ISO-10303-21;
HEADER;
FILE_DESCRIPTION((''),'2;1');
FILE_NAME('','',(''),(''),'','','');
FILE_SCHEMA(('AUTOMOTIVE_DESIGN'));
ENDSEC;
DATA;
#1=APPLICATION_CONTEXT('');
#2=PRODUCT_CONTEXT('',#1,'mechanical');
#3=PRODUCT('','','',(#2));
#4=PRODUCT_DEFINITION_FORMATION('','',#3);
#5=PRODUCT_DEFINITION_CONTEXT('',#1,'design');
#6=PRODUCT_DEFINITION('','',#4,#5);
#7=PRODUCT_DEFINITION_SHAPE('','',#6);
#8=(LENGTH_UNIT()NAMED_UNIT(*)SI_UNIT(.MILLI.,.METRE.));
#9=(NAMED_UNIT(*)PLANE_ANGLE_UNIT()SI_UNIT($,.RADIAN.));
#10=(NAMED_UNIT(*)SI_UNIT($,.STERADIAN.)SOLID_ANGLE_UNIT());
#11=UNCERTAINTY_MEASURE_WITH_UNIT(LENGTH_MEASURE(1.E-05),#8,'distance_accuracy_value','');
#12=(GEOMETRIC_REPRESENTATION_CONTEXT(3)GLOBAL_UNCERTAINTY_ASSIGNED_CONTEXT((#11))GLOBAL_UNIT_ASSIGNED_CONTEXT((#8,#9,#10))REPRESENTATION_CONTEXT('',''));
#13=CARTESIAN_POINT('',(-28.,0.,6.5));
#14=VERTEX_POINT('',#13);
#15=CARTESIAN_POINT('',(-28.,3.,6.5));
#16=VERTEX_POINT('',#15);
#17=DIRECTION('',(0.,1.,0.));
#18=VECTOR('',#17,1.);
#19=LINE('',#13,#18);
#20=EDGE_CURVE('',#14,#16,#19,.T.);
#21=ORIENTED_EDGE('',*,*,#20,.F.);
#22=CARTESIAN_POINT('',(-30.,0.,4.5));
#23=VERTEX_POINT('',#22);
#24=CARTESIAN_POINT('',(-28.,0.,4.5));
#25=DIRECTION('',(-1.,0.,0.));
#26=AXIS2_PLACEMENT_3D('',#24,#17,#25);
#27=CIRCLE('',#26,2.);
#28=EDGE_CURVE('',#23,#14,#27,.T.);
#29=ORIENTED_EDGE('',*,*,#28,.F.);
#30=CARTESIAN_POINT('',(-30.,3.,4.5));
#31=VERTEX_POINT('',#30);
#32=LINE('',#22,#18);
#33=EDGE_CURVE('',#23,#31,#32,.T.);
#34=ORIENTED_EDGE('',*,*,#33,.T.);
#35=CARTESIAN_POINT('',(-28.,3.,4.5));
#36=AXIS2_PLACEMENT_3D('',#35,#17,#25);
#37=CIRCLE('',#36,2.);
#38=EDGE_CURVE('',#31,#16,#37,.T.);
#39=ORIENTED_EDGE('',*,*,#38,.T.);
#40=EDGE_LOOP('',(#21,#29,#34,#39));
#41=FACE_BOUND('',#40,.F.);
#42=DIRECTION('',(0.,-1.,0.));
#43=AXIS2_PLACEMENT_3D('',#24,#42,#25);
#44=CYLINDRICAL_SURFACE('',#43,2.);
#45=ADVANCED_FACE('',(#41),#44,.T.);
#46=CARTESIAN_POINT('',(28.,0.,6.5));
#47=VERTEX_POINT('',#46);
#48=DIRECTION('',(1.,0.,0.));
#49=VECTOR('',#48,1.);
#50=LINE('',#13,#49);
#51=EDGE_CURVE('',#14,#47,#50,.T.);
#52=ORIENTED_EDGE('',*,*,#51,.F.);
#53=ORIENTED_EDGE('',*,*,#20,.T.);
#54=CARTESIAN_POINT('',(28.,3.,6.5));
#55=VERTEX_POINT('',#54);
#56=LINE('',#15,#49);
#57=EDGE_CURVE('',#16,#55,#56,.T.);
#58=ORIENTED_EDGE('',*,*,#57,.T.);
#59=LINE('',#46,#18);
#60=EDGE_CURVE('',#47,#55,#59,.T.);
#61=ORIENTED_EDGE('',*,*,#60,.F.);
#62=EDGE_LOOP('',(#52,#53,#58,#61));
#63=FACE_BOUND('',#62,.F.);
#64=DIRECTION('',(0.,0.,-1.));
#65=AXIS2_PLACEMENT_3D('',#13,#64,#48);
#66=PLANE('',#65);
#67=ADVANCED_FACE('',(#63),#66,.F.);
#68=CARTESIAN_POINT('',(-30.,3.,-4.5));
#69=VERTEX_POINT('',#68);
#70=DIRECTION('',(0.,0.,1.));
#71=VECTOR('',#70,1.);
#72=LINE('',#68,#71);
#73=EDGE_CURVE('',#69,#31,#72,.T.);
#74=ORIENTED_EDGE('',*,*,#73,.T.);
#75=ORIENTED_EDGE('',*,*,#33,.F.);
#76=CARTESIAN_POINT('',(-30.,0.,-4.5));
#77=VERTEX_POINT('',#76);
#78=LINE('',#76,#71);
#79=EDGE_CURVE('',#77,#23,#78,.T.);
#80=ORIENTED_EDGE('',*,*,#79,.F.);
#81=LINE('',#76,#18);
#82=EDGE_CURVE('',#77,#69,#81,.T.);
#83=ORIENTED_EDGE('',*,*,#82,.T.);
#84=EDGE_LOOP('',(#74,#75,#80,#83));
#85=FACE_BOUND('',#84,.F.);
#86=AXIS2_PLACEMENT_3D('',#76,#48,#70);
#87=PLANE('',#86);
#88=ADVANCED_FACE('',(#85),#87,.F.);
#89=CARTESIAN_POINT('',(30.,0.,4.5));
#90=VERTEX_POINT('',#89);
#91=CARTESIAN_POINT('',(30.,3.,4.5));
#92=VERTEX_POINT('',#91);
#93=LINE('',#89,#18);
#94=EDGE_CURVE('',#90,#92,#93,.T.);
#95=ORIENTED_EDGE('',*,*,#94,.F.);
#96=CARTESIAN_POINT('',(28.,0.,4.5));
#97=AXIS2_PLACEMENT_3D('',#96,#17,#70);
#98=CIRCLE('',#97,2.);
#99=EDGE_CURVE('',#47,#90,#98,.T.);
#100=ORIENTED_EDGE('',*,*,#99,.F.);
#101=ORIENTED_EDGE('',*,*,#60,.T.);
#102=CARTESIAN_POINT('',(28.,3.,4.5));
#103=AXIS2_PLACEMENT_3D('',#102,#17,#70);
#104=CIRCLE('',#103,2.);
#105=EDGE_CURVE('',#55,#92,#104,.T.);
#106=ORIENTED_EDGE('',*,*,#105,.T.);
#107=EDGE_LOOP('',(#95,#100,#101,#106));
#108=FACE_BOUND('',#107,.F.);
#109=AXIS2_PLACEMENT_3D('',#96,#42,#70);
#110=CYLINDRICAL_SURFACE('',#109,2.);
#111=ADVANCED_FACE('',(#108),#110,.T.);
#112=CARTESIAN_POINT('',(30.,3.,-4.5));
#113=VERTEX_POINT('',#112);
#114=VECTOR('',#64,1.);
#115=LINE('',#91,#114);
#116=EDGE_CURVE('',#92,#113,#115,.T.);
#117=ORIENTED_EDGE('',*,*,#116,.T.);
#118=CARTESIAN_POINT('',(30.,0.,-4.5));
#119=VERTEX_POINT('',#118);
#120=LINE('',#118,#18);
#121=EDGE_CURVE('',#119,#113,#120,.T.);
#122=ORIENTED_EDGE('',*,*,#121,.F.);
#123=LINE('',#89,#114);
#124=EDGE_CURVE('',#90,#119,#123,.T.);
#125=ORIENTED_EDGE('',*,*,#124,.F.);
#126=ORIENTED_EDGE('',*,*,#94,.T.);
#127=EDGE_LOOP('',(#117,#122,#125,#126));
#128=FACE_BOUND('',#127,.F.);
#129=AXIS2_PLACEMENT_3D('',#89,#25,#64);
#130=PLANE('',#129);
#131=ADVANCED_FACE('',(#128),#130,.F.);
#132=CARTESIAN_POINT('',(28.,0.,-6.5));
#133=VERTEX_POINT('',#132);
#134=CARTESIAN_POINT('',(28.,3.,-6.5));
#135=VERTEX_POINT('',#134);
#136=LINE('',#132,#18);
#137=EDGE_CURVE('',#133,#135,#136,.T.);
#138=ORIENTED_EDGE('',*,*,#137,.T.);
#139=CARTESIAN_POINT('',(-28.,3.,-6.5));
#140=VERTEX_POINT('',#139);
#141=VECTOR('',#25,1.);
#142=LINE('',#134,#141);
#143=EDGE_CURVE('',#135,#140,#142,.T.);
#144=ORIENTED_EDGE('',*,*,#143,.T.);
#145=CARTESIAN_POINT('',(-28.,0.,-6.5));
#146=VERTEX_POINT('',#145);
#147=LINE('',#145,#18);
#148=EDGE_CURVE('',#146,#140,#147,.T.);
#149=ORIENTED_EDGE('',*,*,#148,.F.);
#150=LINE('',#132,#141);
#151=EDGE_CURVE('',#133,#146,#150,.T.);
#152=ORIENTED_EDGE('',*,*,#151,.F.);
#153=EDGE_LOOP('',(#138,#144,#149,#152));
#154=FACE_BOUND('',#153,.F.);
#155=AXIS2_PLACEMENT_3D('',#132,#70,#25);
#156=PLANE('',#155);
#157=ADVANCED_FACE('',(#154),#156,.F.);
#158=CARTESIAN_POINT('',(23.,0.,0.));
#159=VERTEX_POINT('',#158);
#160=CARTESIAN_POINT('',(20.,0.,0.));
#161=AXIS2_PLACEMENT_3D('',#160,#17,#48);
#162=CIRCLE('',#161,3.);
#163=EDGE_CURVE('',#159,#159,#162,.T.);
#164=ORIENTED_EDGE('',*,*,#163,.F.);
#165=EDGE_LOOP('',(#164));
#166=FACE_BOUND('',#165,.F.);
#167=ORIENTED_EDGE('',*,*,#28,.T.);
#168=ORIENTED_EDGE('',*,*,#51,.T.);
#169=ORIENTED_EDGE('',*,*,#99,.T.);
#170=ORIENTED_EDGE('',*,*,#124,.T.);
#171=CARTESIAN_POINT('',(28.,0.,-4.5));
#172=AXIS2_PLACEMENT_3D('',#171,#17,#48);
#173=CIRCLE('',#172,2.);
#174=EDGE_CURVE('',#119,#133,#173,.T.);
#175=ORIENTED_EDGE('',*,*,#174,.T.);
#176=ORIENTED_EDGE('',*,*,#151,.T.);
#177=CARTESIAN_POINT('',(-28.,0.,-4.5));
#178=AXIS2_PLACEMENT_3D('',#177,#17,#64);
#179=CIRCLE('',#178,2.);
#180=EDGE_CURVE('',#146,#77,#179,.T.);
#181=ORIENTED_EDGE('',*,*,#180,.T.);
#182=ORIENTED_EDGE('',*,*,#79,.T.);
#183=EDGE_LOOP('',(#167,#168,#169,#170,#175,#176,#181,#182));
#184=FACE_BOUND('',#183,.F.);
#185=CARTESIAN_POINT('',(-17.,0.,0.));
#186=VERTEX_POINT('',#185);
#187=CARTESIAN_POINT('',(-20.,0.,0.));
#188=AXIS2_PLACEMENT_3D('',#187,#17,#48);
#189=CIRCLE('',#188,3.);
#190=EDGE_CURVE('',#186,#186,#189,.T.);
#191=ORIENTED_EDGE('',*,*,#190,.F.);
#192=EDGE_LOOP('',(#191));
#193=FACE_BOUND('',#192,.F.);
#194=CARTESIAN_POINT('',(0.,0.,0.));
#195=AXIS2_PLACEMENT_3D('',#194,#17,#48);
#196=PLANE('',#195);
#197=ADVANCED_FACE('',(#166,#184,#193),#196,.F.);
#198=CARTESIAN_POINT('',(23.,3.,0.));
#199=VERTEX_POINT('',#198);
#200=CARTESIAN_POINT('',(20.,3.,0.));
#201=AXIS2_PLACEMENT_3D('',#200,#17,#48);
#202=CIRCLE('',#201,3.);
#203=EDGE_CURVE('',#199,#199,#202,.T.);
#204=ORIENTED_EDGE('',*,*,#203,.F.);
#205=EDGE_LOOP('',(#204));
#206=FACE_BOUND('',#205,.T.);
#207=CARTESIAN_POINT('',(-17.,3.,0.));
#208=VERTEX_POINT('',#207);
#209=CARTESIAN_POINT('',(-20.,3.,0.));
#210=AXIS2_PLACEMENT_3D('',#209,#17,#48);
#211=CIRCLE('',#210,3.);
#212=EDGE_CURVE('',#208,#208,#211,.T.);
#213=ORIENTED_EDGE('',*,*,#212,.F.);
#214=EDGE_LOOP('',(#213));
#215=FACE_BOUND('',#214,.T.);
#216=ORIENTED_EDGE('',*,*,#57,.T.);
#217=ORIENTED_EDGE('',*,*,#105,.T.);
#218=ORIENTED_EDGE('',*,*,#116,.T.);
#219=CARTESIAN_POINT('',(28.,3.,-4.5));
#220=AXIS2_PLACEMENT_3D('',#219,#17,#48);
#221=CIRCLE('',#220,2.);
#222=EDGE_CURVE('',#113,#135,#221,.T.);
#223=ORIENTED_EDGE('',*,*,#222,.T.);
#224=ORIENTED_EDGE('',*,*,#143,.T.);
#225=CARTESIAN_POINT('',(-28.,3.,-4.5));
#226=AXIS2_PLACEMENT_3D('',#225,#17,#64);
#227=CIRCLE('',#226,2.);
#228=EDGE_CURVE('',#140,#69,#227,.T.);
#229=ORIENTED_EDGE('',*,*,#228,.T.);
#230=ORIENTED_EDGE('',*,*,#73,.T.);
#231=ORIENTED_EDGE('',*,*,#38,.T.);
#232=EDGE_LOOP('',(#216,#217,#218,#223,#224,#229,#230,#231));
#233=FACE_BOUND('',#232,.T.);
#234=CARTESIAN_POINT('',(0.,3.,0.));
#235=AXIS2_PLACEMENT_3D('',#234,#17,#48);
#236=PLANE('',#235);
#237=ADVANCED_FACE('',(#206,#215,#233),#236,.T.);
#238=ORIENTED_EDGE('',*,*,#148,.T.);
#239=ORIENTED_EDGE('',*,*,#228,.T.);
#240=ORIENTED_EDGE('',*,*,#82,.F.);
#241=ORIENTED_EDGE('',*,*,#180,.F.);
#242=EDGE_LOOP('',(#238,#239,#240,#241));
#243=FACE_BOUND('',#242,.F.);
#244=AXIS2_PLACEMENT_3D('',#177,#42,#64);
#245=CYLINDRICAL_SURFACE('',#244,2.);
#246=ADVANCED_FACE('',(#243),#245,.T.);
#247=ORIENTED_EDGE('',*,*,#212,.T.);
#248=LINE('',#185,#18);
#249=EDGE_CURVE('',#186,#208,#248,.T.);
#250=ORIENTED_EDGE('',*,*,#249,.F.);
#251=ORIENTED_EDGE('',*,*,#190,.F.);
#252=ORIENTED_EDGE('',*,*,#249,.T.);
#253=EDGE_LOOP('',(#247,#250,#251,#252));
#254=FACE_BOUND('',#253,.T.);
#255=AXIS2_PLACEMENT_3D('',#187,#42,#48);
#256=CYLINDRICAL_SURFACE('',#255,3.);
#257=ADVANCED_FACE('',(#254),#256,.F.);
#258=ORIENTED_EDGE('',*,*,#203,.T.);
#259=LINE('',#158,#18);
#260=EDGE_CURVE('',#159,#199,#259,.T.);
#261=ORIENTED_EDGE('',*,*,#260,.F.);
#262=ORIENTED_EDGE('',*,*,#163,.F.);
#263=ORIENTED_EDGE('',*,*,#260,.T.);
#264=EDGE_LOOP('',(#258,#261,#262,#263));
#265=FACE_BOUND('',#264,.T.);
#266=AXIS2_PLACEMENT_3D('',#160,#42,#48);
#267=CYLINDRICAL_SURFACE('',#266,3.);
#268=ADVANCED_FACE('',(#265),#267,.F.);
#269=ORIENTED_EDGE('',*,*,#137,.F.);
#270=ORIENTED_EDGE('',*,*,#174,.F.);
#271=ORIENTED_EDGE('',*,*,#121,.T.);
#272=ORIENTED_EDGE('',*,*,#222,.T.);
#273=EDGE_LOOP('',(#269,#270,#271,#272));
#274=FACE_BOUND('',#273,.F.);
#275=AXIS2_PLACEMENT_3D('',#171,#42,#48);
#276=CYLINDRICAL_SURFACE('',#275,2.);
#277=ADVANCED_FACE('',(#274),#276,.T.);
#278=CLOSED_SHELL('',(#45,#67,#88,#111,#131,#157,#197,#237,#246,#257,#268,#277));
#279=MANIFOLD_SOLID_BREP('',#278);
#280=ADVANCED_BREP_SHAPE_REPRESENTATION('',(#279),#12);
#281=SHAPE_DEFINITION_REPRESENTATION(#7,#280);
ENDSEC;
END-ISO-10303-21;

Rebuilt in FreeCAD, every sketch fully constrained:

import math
import FreeCAD as App
import Part
import Sketcher

V = App.Vector

doc = App.newDocument("Part")
body = doc.addObject("PartDesign::Body", "Body")

# Sketch on XZ plane
sketch1 = body.newObject("Sketcher::SketchObject", "Sketch")
sketch1.AttachmentSupport = (doc.getObject("XZ_Plane"), [""])
sketch1.MapMode = "FlatFace"
sketch1.addGeometry(Part.ArcOfCircle(Part.Circle(V(28, -4.5, 0), V(0, 0, 1), 2), math.radians(-90), math.radians(0)), False)
sketch1.addGeometry(Part.LineSegment(V(28, -6.5, 0), V(-28, -6.5, 0)), False)
sketch1.addGeometry(Part.ArcOfCircle(Part.Circle(V(-28, -4.5, 0), V(0, 0, 1), 2), math.radians(180), math.radians(270)), False)
sketch1.addGeometry(Part.LineSegment(V(-30, -4.5, 0), V(-30, 4.5, 0)), False)
sketch1.addGeometry(Part.ArcOfCircle(Part.Circle(V(-28, 4.5, 0), V(0, 0, 1), 2), math.radians(90), math.radians(180)), False)
sketch1.addGeometry(Part.LineSegment(V(-28, 6.5, 0), V(28, 6.5, 0)), False)
sketch1.addGeometry(Part.ArcOfCircle(Part.Circle(V(28, 4.5, 0), V(0, 0, 1), 2), math.radians(0), math.radians(90)), False)
sketch1.addGeometry(Part.LineSegment(V(30, 4.5, 0), V(30, -4.5, 0)), False)
sketch1.addGeometry(Part.Circle(V(-20, 0, 0), V(0, 0, 1), 3), False)
sketch1.addGeometry(Part.Circle(V(20, 0, 0), V(0, 0, 1), 3), False)
sketch1.addConstraint(Sketcher.Constraint("Tangent", 0, 1, 1, 1))
sketch1.addConstraint(Sketcher.Constraint("Tangent", 1, 2, 2, 2))
sketch1.addConstraint(Sketcher.Constraint("Tangent", 2, 1, 3, 1))
sketch1.addConstraint(Sketcher.Constraint("Tangent", 3, 2, 4, 2))
sketch1.addConstraint(Sketcher.Constraint("Tangent", 4, 1, 5, 1))
sketch1.addConstraint(Sketcher.Constraint("Tangent", 5, 2, 6, 2))
sketch1.addConstraint(Sketcher.Constraint("Tangent", 6, 1, 7, 1))
sketch1.addConstraint(Sketcher.Constraint("Tangent", 7, 2, 0, 2))
sketch1.addConstraint(Sketcher.Constraint("Horizontal", 1))
sketch1.addConstraint(Sketcher.Constraint("Vertical", 3))
sketch1.addConstraint(Sketcher.Constraint("Horizontal", 5))
sketch1.addConstraint(Sketcher.Constraint("Vertical", 7))
sketch1.addConstraint(Sketcher.Constraint("Equal", 0, 2))
sketch1.addConstraint(Sketcher.Constraint("Equal", 2, 4))
sketch1.addConstraint(Sketcher.Constraint("Equal", 4, 6))
sketch1.addConstraint(Sketcher.Constraint("Equal", 8, 9))
sketch1.addConstraint(Sketcher.Constraint("Symmetric", 0, 3, 4, 3, -1, 1))
sketch1.addConstraint(Sketcher.Constraint("Symmetric", 8, 3, 9, 3, -1, 1))
sketch1.addConstraint(Sketcher.Constraint("PointOnObject", 8, 3, -1))
sketch1.addConstraint(Sketcher.Constraint("Diameter", 8, 6.0))
sketch1.addConstraint(Sketcher.Constraint("Radius", 0, 2.0))
sketch1.addConstraint(Sketcher.Constraint("DistanceX", 8, 3, -1, 1, 20.0))
sketch1.addConstraint(Sketcher.Constraint("DistanceY", 0, 1, 5, 2, 13.0))
sketch1.addConstraint(Sketcher.Constraint("DistanceX", 1, 2, 1, 1, 56.0))
pad1 = body.newObject("PartDesign::Pad", "Pad")
pad1.Profile = sketch1
pad1.Length = 3
pad1.Reversed = True

doc.recompute()
